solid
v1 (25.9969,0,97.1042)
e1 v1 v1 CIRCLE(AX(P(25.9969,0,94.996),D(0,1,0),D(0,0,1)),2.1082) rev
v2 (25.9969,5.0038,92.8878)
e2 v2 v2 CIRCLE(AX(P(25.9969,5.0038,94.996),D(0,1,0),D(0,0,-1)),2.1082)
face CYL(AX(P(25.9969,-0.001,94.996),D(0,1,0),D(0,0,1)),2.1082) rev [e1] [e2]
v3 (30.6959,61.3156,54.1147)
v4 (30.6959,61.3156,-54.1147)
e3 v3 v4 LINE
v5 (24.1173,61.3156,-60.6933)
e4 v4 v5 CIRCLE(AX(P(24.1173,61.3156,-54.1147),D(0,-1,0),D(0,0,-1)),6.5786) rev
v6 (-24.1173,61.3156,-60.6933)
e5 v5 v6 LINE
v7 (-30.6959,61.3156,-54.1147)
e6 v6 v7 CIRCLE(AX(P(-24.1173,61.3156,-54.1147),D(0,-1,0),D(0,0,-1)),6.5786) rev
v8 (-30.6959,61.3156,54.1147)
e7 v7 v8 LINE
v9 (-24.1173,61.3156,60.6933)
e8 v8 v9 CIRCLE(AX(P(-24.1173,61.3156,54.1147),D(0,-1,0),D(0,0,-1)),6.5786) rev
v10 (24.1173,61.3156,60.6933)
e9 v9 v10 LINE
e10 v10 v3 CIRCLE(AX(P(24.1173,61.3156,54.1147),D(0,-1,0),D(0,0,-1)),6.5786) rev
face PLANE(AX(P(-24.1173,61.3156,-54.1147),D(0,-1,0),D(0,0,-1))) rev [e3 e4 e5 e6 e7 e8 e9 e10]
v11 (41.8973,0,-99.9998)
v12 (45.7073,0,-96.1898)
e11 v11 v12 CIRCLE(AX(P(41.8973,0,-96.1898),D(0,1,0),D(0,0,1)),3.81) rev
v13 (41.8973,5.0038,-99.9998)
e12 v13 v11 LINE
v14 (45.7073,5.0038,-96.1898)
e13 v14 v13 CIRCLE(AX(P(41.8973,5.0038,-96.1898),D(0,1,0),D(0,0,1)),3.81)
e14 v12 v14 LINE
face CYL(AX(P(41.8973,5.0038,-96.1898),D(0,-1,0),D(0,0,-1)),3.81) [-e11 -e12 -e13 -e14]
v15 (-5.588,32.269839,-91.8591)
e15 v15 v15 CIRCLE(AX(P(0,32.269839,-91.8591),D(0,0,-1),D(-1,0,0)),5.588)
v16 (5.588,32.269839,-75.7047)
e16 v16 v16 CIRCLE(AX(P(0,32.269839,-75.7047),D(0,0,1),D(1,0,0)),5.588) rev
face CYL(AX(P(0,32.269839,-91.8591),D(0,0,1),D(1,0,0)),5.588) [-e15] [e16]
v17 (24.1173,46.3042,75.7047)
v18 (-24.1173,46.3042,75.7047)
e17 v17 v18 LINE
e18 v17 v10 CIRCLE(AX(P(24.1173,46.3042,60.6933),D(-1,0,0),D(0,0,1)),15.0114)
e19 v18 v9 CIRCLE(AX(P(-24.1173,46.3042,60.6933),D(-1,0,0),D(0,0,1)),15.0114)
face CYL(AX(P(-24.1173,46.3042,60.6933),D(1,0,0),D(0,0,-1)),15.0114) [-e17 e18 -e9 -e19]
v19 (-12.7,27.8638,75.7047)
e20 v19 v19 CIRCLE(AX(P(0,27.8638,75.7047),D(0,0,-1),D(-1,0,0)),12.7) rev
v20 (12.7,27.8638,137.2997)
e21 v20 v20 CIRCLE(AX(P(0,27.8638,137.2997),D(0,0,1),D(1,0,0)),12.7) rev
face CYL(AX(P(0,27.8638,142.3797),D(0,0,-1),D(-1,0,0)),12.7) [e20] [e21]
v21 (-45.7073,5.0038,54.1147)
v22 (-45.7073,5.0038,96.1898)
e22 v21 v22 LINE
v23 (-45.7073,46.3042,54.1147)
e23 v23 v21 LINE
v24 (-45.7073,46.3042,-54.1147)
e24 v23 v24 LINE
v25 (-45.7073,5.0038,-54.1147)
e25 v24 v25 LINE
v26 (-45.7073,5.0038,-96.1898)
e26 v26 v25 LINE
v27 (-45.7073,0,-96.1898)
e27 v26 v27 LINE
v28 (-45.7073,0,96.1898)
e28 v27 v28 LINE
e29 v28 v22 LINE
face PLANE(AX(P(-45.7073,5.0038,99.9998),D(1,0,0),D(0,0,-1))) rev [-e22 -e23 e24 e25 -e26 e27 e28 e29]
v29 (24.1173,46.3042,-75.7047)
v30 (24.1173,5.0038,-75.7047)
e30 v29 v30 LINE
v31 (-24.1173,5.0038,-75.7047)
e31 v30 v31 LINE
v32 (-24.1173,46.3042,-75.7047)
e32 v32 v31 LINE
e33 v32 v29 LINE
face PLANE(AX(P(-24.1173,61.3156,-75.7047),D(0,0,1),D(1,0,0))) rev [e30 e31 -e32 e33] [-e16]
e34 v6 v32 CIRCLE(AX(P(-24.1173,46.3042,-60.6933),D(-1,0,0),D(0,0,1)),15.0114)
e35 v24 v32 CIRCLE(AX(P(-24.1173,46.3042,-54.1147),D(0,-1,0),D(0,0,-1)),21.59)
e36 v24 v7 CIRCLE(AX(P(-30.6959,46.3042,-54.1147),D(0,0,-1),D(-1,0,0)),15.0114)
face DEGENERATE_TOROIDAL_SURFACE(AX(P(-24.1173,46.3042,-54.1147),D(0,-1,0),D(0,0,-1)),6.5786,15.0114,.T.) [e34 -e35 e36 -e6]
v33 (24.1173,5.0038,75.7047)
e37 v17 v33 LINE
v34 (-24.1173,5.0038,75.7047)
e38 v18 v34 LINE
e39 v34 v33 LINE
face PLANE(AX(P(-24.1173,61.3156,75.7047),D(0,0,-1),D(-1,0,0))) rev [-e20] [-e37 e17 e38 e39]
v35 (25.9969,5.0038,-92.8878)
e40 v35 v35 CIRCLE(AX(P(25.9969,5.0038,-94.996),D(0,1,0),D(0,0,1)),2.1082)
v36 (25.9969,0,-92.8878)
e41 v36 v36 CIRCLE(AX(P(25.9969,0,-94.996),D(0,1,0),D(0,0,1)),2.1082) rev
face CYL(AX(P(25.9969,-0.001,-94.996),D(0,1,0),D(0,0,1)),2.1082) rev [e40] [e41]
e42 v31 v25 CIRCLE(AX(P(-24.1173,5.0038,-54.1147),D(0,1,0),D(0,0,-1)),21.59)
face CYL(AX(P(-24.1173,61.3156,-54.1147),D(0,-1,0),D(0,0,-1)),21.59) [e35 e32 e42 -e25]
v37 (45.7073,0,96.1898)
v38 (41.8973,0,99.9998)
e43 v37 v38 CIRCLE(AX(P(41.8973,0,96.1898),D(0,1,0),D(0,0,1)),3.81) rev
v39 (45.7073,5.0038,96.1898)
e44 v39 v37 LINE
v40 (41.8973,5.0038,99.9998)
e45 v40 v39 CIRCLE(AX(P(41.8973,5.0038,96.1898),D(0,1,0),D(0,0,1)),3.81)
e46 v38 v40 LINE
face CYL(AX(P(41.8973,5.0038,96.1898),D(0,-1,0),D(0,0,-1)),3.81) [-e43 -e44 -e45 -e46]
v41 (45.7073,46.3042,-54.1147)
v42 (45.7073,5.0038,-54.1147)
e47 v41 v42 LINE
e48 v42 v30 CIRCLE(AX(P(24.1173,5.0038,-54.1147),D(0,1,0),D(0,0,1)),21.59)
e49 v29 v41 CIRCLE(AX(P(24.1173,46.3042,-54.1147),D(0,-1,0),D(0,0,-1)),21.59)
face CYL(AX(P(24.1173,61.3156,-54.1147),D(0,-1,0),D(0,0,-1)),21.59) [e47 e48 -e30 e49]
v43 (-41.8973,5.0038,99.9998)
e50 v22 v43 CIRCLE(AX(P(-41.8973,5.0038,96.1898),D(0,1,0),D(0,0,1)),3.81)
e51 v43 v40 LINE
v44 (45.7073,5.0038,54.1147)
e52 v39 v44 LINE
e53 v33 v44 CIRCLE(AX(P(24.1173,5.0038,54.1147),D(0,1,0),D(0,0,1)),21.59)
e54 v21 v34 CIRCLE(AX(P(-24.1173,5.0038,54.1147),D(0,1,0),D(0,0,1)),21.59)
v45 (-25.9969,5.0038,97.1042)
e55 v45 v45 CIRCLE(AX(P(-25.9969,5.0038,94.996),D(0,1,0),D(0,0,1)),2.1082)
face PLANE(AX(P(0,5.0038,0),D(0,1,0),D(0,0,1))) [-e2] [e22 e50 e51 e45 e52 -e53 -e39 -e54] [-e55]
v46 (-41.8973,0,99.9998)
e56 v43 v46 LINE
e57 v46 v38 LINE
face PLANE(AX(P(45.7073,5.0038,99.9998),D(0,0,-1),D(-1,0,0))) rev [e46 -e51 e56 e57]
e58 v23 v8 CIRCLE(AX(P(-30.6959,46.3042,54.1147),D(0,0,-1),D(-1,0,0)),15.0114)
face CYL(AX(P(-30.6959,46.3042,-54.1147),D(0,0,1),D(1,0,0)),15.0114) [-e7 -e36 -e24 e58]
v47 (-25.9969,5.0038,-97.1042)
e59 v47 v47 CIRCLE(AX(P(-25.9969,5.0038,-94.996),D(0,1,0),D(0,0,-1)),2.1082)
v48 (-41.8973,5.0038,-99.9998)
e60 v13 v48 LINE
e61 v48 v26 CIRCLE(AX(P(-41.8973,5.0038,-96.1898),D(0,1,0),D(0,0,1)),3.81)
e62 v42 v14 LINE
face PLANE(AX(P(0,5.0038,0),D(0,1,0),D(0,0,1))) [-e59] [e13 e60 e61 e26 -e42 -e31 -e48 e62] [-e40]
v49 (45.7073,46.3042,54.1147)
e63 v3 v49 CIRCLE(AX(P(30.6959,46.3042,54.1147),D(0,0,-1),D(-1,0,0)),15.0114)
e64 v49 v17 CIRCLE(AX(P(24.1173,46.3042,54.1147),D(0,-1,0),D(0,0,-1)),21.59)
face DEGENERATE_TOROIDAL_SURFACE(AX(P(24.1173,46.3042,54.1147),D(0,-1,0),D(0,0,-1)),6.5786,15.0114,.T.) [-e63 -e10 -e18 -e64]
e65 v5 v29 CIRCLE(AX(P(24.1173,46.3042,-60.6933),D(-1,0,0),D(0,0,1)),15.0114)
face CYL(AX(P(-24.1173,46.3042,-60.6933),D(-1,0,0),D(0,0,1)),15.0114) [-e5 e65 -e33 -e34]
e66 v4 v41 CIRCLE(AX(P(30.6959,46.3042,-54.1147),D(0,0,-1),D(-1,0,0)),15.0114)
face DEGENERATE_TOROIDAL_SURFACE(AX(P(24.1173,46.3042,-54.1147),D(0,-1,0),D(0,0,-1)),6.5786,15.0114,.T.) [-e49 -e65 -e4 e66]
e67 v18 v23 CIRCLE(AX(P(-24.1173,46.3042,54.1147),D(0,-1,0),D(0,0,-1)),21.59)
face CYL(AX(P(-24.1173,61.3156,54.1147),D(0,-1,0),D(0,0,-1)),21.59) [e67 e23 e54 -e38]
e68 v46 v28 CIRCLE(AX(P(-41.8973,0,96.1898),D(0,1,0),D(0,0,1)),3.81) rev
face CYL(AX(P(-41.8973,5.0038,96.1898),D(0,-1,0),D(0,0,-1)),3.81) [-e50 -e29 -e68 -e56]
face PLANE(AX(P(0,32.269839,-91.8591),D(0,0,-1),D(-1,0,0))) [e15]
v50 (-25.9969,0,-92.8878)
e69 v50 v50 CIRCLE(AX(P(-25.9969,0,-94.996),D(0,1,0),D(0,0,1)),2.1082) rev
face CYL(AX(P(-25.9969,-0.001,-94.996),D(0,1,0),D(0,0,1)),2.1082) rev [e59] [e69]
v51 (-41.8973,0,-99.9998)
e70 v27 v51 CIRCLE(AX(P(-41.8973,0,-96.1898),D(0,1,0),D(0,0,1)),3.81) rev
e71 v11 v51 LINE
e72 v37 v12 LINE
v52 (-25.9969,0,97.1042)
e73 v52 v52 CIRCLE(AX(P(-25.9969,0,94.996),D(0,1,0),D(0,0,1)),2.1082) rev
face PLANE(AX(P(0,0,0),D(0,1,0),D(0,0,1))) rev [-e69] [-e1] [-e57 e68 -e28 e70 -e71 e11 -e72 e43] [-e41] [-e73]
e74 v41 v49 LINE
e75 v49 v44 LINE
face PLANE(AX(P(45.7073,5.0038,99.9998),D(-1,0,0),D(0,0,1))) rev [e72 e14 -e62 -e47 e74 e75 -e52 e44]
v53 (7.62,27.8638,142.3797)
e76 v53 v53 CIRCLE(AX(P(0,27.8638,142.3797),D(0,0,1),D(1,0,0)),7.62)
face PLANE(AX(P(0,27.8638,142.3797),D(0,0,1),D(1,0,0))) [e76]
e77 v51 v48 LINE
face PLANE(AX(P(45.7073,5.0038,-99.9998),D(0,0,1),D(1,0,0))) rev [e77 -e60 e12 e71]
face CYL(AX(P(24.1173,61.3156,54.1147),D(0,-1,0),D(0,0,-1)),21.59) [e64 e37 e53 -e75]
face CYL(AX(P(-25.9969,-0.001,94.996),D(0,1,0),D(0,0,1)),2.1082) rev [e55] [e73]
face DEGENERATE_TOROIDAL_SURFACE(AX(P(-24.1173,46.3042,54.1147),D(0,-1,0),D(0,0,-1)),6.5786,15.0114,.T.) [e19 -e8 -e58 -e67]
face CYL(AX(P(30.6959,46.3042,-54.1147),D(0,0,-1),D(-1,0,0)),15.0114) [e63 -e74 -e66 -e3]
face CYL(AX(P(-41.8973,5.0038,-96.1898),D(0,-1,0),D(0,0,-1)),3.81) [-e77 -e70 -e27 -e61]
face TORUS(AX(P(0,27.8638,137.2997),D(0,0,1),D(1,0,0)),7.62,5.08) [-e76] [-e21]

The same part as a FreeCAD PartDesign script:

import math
import FreeCAD as App
import Part
import Sketcher

V = App.Vector
Q = App.Units.Quantity


def edges_at(feature, points):
    """Names of the edges that pass closest to the given points."""
    edges = feature.Shape.Edges
    near = lambda p: min(range(len(edges)), key=lambda i: edges[i].distToShape(Part.Vertex(*p))[0])
    return sorted({f"Edge{near(p) + 1}" for p in points})


def add_polygon(sketch, points):
    """Adds a closed chain of lines whose ends are joined by coincident constraints."""
    first, n = sketch.GeometryCount, len(points)
    for a, b in zip(points, points[1:] + points[:1]):
        sketch.addGeometry(Part.LineSegment(App.Vector(*a, 0), App.Vector(*b, 0)), False)
    for i in range(n):
        sketch.addConstraint(Sketcher.Constraint("Coincident", first + i, 2, first + (i + 1) % n, 1))

doc = App.newDocument("Part")
body = doc.addObject("PartDesign::Body", "Body")

sketch1 = doc.addObject("Sketcher::SketchObject", "Sketch")
body.addObject(sketch1)
sketch1.AttachmentSupport = (doc.XZ_Plane, [""])
sketch1.MapMode = "FlatFace"
add_polygon(sketch1, [(-46, -100), (-46, 100), (46, 100), (46, -100)])
sketch1.addConstraint(Sketcher.Constraint("Vertical", 0))
sketch1.addConstraint(Sketcher.Constraint("Horizontal", 1))
sketch1.addConstraint(Sketcher.Constraint("Vertical", 2))
sketch1.addConstraint(Sketcher.Constraint("Horizontal", 3))
sketch1.addConstraint(Sketcher.Constraint("Symmetric", 0, 2, 2, 2, -1, 1))
sketch1.addConstraint(Sketcher.Constraint("DistanceX", 1, 1, 1, 2, Q("3.599 in")))
sketch1.addConstraint(Sketcher.Constraint("DistanceY", 0, 1, 0, 2, Q("7.874 in")))
pad1 = doc.addObject("PartDesign::Pad", "Pad")
body.addObject(pad1)
pad1.Profile = sketch1
pad1.Length = Q("0.197 in")
pad1.Reversed = True

sketch2 = doc.addObject("Sketcher::SketchObject", "Sketch001")
body.addObject(sketch2)
sketch2.AttachmentSupport = (doc.XZ_Plane, [""])
sketch2.MapMode = "FlatFace"
sketch2.AttachmentOffset = App.Placement(V(0, 0, -0.197 * 25.4), App.Rotation())
sketch2.addGeometry(Part.LineSegment(V(24, -76, 0), V(-24, -76, 0)), False)
sketch2.addGeometry(Part.ArcOfCircle(Part.Circle(V(-24, -54, 0), V(0, 0, 1), 22), math.radians(180), math.radians(270)), False)
sketch2.addGeometry(Part.LineSegment(V(-46, -54, 0), V(-46, 54, 0)), False)
sketch2.addGeometry(Part.ArcOfCircle(Part.Circle(V(-24, 54, 0), V(0, 0, 1), 22), math.radians(90), math.radians(180)), False)
sketch2.addGeometry(Part.LineSegment(V(-24, 76, 0), V(24, 76, 0)), False)
sketch2.addGeometry(Part.ArcOfCircle(Part.Circle(V(24, 54, 0), V(0, 0, 1), 22), math.radians(0), math.radians(90)), False)
sketch2.addGeometry(Part.LineSegment(V(46, 54, 0), V(46, -54, 0)), False)
sketch2.addGeometry(Part.ArcOfCircle(Part.Circle(V(24, -54, 0), V(0, 0, 1), 22), math.radians(-90), math.radians(0)), False)
sketch2.addConstraint(Sketcher.Constraint("Tangent", 0, 2, 1, 2))
sketch2.addConstraint(Sketcher.Constraint("Tangent", 1, 1, 2, 1))
sketch2.addConstraint(Sketcher.Constraint("Tangent", 2, 2, 3, 2))
sketch2.addConstraint(Sketcher.Constraint("Tangent", 3, 1, 4, 1))
sketch2.addConstraint(Sketcher.Constraint("Tangent", 4, 2, 5, 2))
sketch2.addConstraint(Sketcher.Constraint("Tangent", 5, 1, 6, 1))
sketch2.addConstraint(Sketcher.Constraint("Tangent", 6, 2, 7, 2))
sketch2.addConstraint(Sketcher.Constraint("Tangent", 7, 1, 0, 1))
sketch2.addConstraint(Sketcher.Constraint("Horizontal", 0))
sketch2.addConstraint(Sketcher.Constraint("Vertical", 2))
sketch2.addConstraint(Sketcher.Constraint("Horizontal", 4))
sketch2.addConstraint(Sketcher.Constraint("Vertical", 6))
sketch2.addConstraint(Sketcher.Constraint("Equal", 1, 3))
sketch2.addConstraint(Sketcher.Constraint("Equal", 3, 5))
sketch2.addConstraint(Sketcher.Constraint("Equal", 5, 7))
sketch2.addConstraint(Sketcher.Constraint("Symmetric", 1, 3, 5, 3, -1, 1))
sketch2.addConstraint(Sketcher.Constraint("Radius", 1, Q("0.85 in")))
sketch2.addConstraint(Sketcher.Constraint("DistanceX", 0, 2, 0, 1, Q("1.899 in")))
sketch2.addConstraint(Sketcher.Constraint("DistanceY", 2, 1, 2, 2, Q("4.261 in")))
pad2 = doc.addObject("PartDesign::Pad", "Pad001")
body.addObject(pad2)
pad2.Profile = sketch2
pad2.Length = Q("2.217 in")
pad2.Reversed = True
doc.recompute()

fillet = doc.addObject("PartDesign::Fillet", "Fillet")
body.addObject(fillet)
fillet.Base = (pad2, edges_at(pad2, [
    (-39.384, 61.316, -69.381),
    (-45.707, 61.316, 0),
    (-39.384, 61.316, 69.381),
    (0, 61.316, 75.705),
    (39.384, 61.316, 69.381),
    (45.707, 61.316, 0),
    (39.384, 61.316, -69.381),
    (0, 61.316, -75.705),
]))
fillet.Radius = Q("0.591 in")

sketch3 = doc.addObject("Sketcher::SketchObject", "Sketch002")
body.addObject(sketch3)
sketch3.AttachmentSupport = (doc.XZ_Plane, [""])
sketch3.MapMode = "FlatFace"
sketch3.AttachmentOffset = App.Placement(V(0, 0, -0.197 * 25.4), App.Rotation())
sketch3.addGeometry(Part.Circle(V(26, -95, 0), V(0, 0, 1), 2.1), False)
sketch3.addConstraint(Sketcher.Constraint("Diameter", 0, Q("0.166 in")))
sketch3.addConstraint(Sketcher.Constraint("DistanceY", 0, 3, -1, 1, Q("3.74 in")))
sketch3.addConstraint(Sketcher.Constraint("DistanceX", -1, 1, 0, 3, Q("1.0235 in")))
pocket1 = doc.addObject("PartDesign::Pocket", "Pocket")
body.addObject(pocket1)
pocket1.Profile = sketch3
pocket1.Type = "UpToFirst"
pocket1.Reversed = True

sketch4 = doc.addObject("Sketcher::SketchObject", "Sketch003")
body.addObject(sketch4)
sketch4.AttachmentSupport = (doc.XZ_Plane, [""])
sketch4.MapMode = "FlatFace"
sketch4.AttachmentOffset = App.Placement(V(0, 0, -0.197 * 25.4), App.Rotation())
sketch4.addGeometry(Part.Circle(V(-26, -95, 0), V(0, 0, 1), 2.1), False)
sketch4.addConstraint(Sketcher.Constraint("Diameter", 0, Q("0.166 in")))
sketch4.addConstraint(Sketcher.Constraint("DistanceY", 0, 3, -1, 1, Q("3.74 in")))
sketch4.addConstraint(Sketcher.Constraint("DistanceX", 0, 3, -1, 1, Q("1.0235 in")))
pocket2 = doc.addObject("PartDesign::Pocket", "Pocket001")
body.addObject(pocket2)
pocket2.Profile = sketch4
pocket2.Type = "UpToFirst"
pocket2.Reversed = True

sketch5 = doc.addObject("Sketcher::SketchObject", "Sketch004")
body.addObject(sketch5)
sketch5.AttachmentSupport = (doc.XZ_Plane, [""])
sketch5.MapMode = "FlatFace"
sketch5.AttachmentOffset = App.Placement(V(0, 0, -0.197 * 25.4), App.Rotation())
sketch5.addGeometry(Part.Circle(V(26, 95, 0), V(0, 0, 1), 2.1), False)
sketch5.addConstraint(Sketcher.Constraint("Diameter", 0, Q("0.166 in")))
sketch5.addConstraint(Sketcher.Constraint("DistanceY", -1, 1, 0, 3, Q("3.74 in")))
sketch5.addConstraint(Sketcher.Constraint("DistanceX", -1, 1, 0, 3, Q("1.0235 in")))
pocket3 = doc.addObject("PartDesign::Pocket", "Pocket002")
body.addObject(pocket3)
pocket3.Profile = sketch5
pocket3.Type = "UpToFirst"
pocket3.Reversed = True

sketch6 = doc.addObject("Sketcher::SketchObject", "Sketch005")
body.addObject(sketch6)
sketch6.AttachmentSupport = (doc.XZ_Plane, [""])
sketch6.MapMode = "FlatFace"
sketch6.AttachmentOffset = App.Placement(V(0, 0, -0.197 * 25.4), App.Rotation())
sketch6.addGeometry(Part.Circle(V(-26, 95, 0), V(0, 0, 1), 2.1), False)
sketch6.addConstraint(Sketcher.Constraint("Diameter", 0, Q("0.166 in")))
sketch6.addConstraint(Sketcher.Constraint("DistanceY", -1, 1, 0, 3, Q("3.74 in")))
sketch6.addConstraint(Sketcher.Constraint("DistanceX", 0, 3, -1, 1, Q("1.0235 in")))
pocket4 = doc.addObject("PartDesign::Pocket", "Pocket003")
body.addObject(pocket4)
pocket4.Profile = sketch6
pocket4.Type = "UpToFirst"
pocket4.Reversed = True
doc.recompute()

fillet2 = doc.addObject("PartDesign::Fillet", "Fillet001")
body.addObject(fillet2)
fillet2.Base = (pocket4, edges_at(pocket4, [
    (45.707, 2.502, 100),
    (-45.707, 2.502, 100),
    (-45.707, 2.502, -100),
    (45.707, 2.502, -100),
]))
fillet2.Radius = Q("0.15 in")

sketch7 = doc.addObject("Sketcher::SketchObject", "Sketch006")
body.addObject(sketch7)
sketch7.AttachmentSupport = (doc.XY_Plane, [""])
sketch7.MapMode = "FlatFace"
sketch7.AttachmentOffset = App.Placement(V(0, 0, 2.9805 * 25.4), App.Rotation())
sketch7.addGeometry(Part.Circle(V(0, 28, 0), V(0, 0, 1), 13), False)
sketch7.addConstraint(Sketcher.Constraint("PointOnObject", 0, 3, -2))
sketch7.addConstraint(Sketcher.Constraint("Diameter", 0, Q("1 in")))
sketch7.addConstraint(Sketcher.Constraint("DistanceY", -1, 1, 0, 3, Q("1.097 in")))
pad3 = doc.addObject("PartDesign::Pad", "Pad002")
body.addObject(pad3)
pad3.Profile = sketch7
pad3.Length = Q("2.625 in")
doc.recompute()

fillet3 = doc.addObject("PartDesign::Fillet", "Fillet002")
body.addObject(fillet3)
fillet3.Base = (pad3, edges_at(pad3, [(-12.7, 27.864, 142.38)]))
fillet3.Radius = Q("0.2 in")

sketch8 = doc.addObject("Sketcher::SketchObject", "Sketch007")
body.addObject(sketch8)
sketch8.AttachmentSupport = (doc.XY_Plane, [""])
sketch8.MapMode = "FlatFace"
sketch8.AttachmentOffset = App.Placement(V(0, 0, -2.9805 * 25.4), App.Rotation())
sketch8.addGeometry(Part.Circle(V(0, 32, 0), V(0, 0, 1), 6), False)
sketch8.addConstraint(Sketcher.Constraint("PointOnObject", 0, 3, -2))
sketch8.addConstraint(Sketcher.Constraint("Diameter", 0, Q("0.44 in")))
sketch8.addConstraint(Sketcher.Constraint("DistanceY", -1, 1, 0, 3, 32.269839))
pad4 = doc.addObject("PartDesign::Pad", "Pad003")
body.addObject(pad4)
pad4.Profile = sketch8
pad4.Length = Q("0.636 in")
pad4.Reversed = True

doc.recompute()
